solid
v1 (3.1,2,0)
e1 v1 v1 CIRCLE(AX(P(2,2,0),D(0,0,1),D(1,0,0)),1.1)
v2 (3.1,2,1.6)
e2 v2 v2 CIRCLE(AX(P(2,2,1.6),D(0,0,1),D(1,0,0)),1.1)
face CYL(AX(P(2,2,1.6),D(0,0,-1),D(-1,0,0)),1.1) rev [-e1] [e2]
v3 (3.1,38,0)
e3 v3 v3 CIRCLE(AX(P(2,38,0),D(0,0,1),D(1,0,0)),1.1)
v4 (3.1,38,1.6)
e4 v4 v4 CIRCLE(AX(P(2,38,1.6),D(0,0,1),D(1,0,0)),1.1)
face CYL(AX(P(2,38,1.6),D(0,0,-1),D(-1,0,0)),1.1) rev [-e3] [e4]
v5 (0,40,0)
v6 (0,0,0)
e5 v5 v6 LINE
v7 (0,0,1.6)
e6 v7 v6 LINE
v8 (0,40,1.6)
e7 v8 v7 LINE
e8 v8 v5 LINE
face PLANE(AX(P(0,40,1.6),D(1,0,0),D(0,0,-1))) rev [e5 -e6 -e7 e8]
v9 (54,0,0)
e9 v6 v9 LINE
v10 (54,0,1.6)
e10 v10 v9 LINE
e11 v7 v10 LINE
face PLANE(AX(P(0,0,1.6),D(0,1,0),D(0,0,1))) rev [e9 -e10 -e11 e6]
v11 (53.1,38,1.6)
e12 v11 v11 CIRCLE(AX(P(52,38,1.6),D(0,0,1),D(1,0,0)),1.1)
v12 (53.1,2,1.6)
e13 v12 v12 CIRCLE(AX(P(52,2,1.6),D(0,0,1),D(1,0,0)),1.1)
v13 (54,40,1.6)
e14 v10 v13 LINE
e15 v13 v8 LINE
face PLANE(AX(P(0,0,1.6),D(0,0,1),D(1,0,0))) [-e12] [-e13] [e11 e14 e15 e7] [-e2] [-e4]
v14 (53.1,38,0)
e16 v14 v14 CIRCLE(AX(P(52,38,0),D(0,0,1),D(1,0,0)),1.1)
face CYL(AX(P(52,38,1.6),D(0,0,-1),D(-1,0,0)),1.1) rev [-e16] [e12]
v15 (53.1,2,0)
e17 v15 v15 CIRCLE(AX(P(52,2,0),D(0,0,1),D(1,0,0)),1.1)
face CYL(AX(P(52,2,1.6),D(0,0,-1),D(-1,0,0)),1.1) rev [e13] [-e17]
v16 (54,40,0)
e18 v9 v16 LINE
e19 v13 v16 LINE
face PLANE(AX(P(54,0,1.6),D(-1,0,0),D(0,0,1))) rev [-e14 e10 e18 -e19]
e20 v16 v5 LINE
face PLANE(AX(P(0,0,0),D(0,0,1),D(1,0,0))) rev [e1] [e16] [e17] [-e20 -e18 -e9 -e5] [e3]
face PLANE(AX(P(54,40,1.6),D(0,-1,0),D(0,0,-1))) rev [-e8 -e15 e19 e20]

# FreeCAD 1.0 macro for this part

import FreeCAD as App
import Part
import Sketcher

doc = App.newDocument("Part")
body = doc.addObject("PartDesign::Body", "Body")

# Sketch on XY plane
sketch1 = body.newObject("Sketcher::SketchObject", "Sketch")
sketch1.AttachmentSupport = (doc.getObject("XY_Plane"), [""])
sketch1.MapMode = "FlatFace"
sketch1.addGeometry([
    Part.LineSegment(App.Vector(0, 40, 0), App.Vector(0, 0, 0)),  # 0
    Part.LineSegment(App.Vector(0, 0, 0), App.Vector(54, 0, 0)),  # 1
    Part.LineSegment(App.Vector(54, 0, 0), App.Vector(54, 40, 0)),  # 2
    Part.LineSegment(App.Vector(54, 40, 0), App.Vector(0, 40, 0)),  # 3
    Part.Circle(App.Vector(2, 2, 0), App.Vector(0, 0, 1), 1.1),  # 4
    Part.Circle(App.Vector(52, 2, 0), App.Vector(0, 0, 1), 1.1),  # 5
    Part.Circle(App.Vector(2, 38, 0), App.Vector(0, 0, 1), 1.1),  # 6
    Part.Circle(App.Vector(52, 38, 0), App.Vector(0, 0, 1), 1.1),  # 7
], False)
sketch1.addConstraint([
    Sketcher.Constraint("Coincident", 0, 2, 1, 1),
    Sketcher.Constraint("Coincident", 1, 2, 2, 1),
    Sketcher.Constraint("Coincident", 2, 2, 3, 1),
    Sketcher.Constraint("Coincident", 3, 2, 0, 1),
    Sketcher.Constraint("Vertical", 0),
    Sketcher.Constraint("Horizontal", 1),
    Sketcher.Constraint("Vertical", 2),
    Sketcher.Constraint("Horizontal", 3),
    Sketcher.Constraint("Coincident", 0, 2, -1, 1),
    Sketcher.Constraint("Equal", 4, 5),
    Sketcher.Constraint("Equal", 5, 6),
    Sketcher.Constraint("Equal", 6, 7),
    Sketcher.Constraint("Horizontal", 4, 3, 5, 3),
    Sketcher.Constraint("Horizontal", 6, 3, 7, 3),
    Sketcher.Constraint("Vertical", 4, 3, 6, 3),
    Sketcher.Constraint("Vertical", 5, 3, 7, 3),
    Sketcher.Constraint("Diameter", 4, 2.2),
    Sketcher.Constraint("DistanceX", 1, 1, 1, 2, 54.0),
    Sketcher.Constraint("DistanceY", 0, 2, 0, 1, 40.0),
    Sketcher.Constraint("DistanceX", -1, 1, 4, 3, 2.0),
    Sketcher.Constraint("DistanceY", -1, 1, 4, 3, 2.0),
    Sketcher.Constraint("DistanceX", -1, 1, 5, 3, 52.0),
    Sketcher.Constraint("DistanceY", -1, 1, 6, 3, 38.0),
])
pad1 = body.newObject("PartDesign::Pad", "Pad")
pad1.Profile = sketch1
pad1.Length = 1.6

doc.recompute()
